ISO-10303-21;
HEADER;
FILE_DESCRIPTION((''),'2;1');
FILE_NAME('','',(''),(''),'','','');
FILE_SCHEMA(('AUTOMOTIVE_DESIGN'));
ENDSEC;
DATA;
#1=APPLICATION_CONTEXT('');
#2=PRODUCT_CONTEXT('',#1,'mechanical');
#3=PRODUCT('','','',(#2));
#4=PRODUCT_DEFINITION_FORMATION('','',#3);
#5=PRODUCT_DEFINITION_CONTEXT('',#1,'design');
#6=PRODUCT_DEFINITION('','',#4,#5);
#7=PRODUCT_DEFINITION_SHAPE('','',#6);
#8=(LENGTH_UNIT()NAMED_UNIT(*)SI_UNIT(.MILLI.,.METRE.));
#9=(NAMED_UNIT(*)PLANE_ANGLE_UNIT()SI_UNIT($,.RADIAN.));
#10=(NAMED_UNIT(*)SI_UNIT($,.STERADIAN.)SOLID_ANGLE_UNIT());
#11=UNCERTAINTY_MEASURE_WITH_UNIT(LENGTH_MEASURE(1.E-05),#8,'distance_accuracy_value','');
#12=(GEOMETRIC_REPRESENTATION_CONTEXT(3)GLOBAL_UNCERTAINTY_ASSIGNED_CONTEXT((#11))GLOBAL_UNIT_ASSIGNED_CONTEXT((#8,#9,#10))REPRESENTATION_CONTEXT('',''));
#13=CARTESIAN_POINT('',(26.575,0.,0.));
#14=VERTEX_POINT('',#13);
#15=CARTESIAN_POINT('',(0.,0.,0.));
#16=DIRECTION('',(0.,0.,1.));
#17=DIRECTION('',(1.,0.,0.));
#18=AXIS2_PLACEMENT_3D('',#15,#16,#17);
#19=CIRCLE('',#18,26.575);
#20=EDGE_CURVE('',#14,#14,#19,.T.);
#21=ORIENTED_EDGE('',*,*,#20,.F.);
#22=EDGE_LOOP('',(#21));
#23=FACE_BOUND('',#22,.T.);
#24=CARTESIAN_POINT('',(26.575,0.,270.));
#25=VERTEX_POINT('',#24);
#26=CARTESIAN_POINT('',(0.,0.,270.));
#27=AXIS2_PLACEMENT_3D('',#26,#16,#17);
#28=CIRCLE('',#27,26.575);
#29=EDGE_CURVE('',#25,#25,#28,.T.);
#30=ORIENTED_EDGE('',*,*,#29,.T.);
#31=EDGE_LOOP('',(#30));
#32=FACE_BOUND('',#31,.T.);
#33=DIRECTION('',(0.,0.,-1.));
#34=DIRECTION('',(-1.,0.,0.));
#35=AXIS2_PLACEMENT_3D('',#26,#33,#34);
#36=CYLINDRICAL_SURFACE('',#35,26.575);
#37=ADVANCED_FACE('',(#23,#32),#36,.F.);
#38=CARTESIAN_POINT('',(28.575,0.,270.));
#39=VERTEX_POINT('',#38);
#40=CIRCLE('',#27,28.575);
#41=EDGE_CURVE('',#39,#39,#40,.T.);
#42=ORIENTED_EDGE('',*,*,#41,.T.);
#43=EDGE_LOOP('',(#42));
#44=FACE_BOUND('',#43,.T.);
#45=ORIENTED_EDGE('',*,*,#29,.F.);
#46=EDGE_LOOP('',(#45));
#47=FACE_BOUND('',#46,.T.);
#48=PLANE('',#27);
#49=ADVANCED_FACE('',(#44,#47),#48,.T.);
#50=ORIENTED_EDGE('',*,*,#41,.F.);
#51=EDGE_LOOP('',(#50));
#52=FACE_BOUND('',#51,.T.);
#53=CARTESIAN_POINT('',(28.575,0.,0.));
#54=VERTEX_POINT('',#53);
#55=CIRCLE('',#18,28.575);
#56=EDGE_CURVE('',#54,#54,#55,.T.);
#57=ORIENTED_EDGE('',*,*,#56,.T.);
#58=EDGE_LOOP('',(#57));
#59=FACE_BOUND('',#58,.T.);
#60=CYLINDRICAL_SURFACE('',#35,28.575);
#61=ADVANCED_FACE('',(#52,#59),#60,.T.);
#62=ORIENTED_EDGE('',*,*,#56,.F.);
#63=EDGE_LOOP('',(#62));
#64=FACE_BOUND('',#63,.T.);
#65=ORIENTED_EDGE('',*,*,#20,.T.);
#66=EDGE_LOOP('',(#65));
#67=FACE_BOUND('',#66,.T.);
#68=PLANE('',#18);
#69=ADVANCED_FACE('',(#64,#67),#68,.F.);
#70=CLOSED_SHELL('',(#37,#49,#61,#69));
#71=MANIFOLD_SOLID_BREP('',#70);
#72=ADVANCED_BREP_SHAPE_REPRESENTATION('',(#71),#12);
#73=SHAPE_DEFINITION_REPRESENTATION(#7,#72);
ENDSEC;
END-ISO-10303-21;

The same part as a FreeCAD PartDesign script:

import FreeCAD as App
import Part
import Sketcher

V = App.Vector

doc = App.newDocument("Part")
body = doc.addObject("PartDesign::Body", "Body")

# Sketch on XY plane
sketch1 = body.newObject("Sketcher::SketchObject", "Sketch")
sketch1.AttachmentSupport = (doc.getObject("XY_Plane"), [""])
sketch1.MapMode = "FlatFace"
sketch1.addGeometry(Part.Circle(V(0, 0, 0), V(0, 0, 1), 29), False)
sketch1.addGeometry(Part.Circle(V(0, 0, 0), V(0, 0, 1), 27), False)
sketch1.addConstraint(Sketcher.Constraint("Coincident", 0, 3, -1, 1))
sketch1.addConstraint(Sketcher.Constraint("Coincident", 1, 3, -1, 1))
sketch1.addConstraint(Sketcher.Constraint("Diameter", 0, 57.15))
sketch1.addConstraint(Sketcher.Constraint("Diameter", 1, 53.15))
pad1 = body.newObject("PartDesign::Pad", "Pad")
pad1.Profile = sketch1
pad1.Length = 270

doc.recompute()
